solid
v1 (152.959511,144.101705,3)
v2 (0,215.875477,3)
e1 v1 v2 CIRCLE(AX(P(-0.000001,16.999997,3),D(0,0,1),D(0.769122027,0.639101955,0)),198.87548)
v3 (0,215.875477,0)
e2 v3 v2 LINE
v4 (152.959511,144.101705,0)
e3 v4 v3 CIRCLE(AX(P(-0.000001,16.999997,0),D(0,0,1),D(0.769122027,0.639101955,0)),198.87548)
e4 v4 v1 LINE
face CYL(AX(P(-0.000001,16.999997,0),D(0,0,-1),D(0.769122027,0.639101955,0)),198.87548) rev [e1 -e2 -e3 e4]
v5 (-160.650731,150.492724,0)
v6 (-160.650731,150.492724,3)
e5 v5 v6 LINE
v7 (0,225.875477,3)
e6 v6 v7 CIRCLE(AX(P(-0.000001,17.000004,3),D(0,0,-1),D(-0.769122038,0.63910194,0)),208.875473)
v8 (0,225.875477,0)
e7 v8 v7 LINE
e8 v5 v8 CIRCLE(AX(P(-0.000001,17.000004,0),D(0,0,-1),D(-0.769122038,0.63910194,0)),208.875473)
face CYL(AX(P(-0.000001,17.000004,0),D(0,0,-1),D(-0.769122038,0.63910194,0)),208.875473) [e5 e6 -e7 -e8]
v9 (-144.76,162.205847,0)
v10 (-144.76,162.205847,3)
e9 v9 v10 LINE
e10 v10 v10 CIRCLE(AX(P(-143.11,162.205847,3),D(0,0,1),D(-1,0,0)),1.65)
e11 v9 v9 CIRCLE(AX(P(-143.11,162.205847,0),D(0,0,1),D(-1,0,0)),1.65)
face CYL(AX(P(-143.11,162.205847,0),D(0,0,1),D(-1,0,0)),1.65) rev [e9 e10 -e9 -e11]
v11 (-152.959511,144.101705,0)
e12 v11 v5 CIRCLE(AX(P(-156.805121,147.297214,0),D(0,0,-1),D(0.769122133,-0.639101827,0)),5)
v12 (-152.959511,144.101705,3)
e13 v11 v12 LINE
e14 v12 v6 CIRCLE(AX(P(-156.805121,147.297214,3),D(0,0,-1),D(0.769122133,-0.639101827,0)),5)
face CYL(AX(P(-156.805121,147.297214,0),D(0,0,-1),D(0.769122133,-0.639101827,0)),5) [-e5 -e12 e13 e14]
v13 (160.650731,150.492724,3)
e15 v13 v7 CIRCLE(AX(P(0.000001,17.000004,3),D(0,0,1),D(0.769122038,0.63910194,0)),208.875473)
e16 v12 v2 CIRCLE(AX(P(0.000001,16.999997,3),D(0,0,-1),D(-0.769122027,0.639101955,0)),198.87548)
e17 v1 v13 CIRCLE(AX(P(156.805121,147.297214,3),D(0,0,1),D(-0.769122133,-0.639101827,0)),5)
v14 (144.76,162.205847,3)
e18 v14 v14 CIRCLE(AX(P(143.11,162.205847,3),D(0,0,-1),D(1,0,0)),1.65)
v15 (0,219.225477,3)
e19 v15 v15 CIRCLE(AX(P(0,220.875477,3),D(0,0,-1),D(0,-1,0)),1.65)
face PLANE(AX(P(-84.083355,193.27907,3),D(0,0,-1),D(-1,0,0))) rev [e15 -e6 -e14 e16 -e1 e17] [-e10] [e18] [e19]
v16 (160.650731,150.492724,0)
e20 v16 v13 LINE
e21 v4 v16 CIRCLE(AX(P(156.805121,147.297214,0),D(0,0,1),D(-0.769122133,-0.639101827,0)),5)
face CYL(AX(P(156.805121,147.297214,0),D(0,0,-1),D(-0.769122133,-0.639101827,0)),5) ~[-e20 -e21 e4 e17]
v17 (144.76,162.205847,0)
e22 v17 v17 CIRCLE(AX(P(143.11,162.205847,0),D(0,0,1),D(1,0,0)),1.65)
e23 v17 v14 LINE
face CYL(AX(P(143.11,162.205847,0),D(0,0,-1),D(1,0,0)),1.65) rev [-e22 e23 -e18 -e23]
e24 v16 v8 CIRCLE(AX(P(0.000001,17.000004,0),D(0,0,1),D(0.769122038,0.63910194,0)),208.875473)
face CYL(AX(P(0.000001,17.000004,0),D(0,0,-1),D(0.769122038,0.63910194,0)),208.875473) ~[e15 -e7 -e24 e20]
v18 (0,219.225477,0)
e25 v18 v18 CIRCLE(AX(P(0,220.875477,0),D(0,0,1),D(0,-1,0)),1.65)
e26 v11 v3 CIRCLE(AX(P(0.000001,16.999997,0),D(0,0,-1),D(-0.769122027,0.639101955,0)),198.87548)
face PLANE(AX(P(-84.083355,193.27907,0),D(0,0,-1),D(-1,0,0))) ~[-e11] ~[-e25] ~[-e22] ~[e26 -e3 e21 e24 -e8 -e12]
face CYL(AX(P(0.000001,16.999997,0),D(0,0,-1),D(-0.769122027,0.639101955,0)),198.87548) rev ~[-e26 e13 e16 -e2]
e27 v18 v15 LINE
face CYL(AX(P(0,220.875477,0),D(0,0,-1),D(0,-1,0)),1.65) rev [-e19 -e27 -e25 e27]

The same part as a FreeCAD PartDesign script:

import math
import FreeCAD as App
import Part
import Sketcher

V = App.Vector

doc = App.newDocument("Part")
params = doc.addObject("Spreadsheet::Sheet", "Params")
for row, (alias, value) in enumerate([
    ("sketch1_radius", "5 mm"),
    ("pad1_length", "3 mm"),
    ("sketch2_diameter", "3.3 mm"),
], start=1):
    params.set(f"A{row}", alias)
    params.set(f"B{row}", "=" + value)
    params.setAlias(f"B{row}", alias)

body = doc.addObject("PartDesign::Body", "Body")

sketch1 = doc.addObject("Sketcher::SketchObject", "Sketch")
body.addObject(sketch1)
sketch1.AttachmentSupport = (doc.XY_Plane, [""])
sketch1.MapMode = "FlatFace"
sketch1.addGeometry([
    Part.ArcOfCircle(Part.Circle(V(0, 0, 0), V(0, 0, 1), 198.9), math.radians(40), math.radians(90)),
    Part.ArcOfCircle(Part.Circle(V(156.8, 130.3, 0), V(0, 0, 1), 5), math.radians(-140), math.radians(40)),
    Part.ArcOfCircle(Part.Circle(V(0, 0, 0), V(0, 0, 1), 208.9), math.radians(40), math.radians(90)),
    Part.LineSegment(V(0, 208.9, 0), V(0, 198.9, 0)),
], False)
sketch1.addConstraint([
    Sketcher.Constraint("Tangent", 0, 1, 1, 1),
    Sketcher.Constraint("Tangent", 1, 2, 2, 1),
    Sketcher.Constraint("Coincident", 2, 2, 3, 1),
    Sketcher.Constraint("Coincident", 3, 2, 0, 2),
    Sketcher.Constraint("Vertical", 3),
    Sketcher.Constraint("Coincident", 0, 3, -1, 1),
    Sketcher.Constraint("Coincident", 2, 3, -1, 1),
    Sketcher.Constraint("PointOnObject", 2, 2, -2),
    Sketcher.Constraint("Radius", 1, 5.0),
    Sketcher.Constraint("Radius", 0, 198.87548),
    Sketcher.Constraint("DistanceY", 2, 3, 0, 1, 127.101701),
])
sketch1.setExpression("Constraints[8]", "Params.sketch1_radius")
pad1 = doc.addObject("PartDesign::Pad", "Pad")
body.addObject(pad1)
pad1.Profile = sketch1
pad1.setExpression("Length", "Params.pad1_length")

sketch2 = doc.addObject("Sketcher::SketchObject", "Sketch001")
body.addObject(sketch2)
sketch2.AttachmentSupport = (doc.XY_Plane, [""])
sketch2.MapMode = "FlatFace"
sketch2.addGeometry([
    Part.Circle(V(143.1, 145.2, 0), V(0, 0, 1), 1.6),
    Part.LineSegment(V(0, 205.5, 0), V(0, 202.2, 0)),
    Part.ArcOfCircle(Part.Circle(V(0, 203.9, 0), V(0, 0, 1), 1.6), math.radians(-90), math.radians(90)),
], False)
sketch2.addConstraint([
    Sketcher.Constraint("Coincident", 1, 1, 2, 2),
    Sketcher.Constraint("Coincident", 2, 1, 1, 2),
    Sketcher.Constraint("Vertical", 1),
    Sketcher.Constraint("Equal", 0, 2),
    Sketcher.Constraint("PointOnObject", 2, 3, -2),
    Sketcher.Constraint("PointOnObject", 1, 1, -2),
    Sketcher.Constraint("Diameter", 0, 3.3),
    Sketcher.Constraint("DistanceX", -1, 1, 0, 3, 143.11),
    Sketcher.Constraint("DistanceY", 0, 3, 2, 3, 58.66963),
    Sketcher.Constraint("DistanceY", -1, 1, 0, 3, 145.205847),
])
sketch2.setExpression("Constraints[6]", "Params.sketch2_diameter")
pocket1 = doc.addObject("PartDesign::Pocket", "Pocket")
body.addObject(pocket1)
pocket1.Profile = sketch2
pocket1.Type = "ThroughAll"
pocket1.Midplane = True
doc.recompute()

mirrored = doc.addObject("PartDesign::Mirrored", "Mirrored")
body.addObject(mirrored)
mirrored.Originals = [pad1, pocket1]
mirrored.MirrorPlane = (doc.YZ_Plane, [""])
body.Tip = mirrored
body2 = doc.addObject("PartDesign::Body", "Body001")
doc.recompute()

body.Placement = App.Placement(V(0, 0, 0), App.Rotation(V(0, 0, 1), 60))
boolean = doc.addObject("PartDesign::Boolean", "Boolean")
body2.addObject(boolean)
boolean.Type = "Fuse"
boolean.addObjects([body])
body3 = doc.addObject("PartDesign::Body", "Body002")
doc.recompute()

body2.Placement = App.Placement(V(0, 17, 0), App.Rotation(V(0, 0, -1), 60))
boolean2 = doc.addObject("PartDesign::Boolean", "Boolean001")
body3.addObject(boolean2)
boolean2.Type = "Fuse"
boolean2.addObjects([body2])

doc.recompute()
